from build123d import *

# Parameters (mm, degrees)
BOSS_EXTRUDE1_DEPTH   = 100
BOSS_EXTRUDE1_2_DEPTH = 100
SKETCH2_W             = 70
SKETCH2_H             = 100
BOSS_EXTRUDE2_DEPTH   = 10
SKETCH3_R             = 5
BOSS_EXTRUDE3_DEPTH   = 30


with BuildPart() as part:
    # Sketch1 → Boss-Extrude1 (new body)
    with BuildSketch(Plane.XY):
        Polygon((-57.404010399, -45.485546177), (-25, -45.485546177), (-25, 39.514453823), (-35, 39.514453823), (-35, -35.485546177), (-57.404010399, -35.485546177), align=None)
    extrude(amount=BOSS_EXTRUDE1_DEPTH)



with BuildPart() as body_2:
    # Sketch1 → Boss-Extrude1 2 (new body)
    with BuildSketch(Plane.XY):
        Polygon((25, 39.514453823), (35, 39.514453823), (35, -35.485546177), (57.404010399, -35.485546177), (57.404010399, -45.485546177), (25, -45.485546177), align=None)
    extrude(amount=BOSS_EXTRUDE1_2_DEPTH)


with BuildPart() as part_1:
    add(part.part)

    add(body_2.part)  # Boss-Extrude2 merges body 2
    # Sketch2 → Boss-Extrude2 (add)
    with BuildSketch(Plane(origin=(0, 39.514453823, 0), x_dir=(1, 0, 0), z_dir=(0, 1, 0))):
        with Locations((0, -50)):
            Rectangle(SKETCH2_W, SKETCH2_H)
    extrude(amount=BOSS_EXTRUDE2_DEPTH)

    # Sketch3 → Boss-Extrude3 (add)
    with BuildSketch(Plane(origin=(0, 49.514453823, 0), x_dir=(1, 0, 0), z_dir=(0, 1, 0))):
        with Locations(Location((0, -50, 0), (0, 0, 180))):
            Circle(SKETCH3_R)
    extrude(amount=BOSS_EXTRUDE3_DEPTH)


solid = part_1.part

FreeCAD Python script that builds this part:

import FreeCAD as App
import Part
import Sketcher
from FreeCAD import Vector


def add_polygon(sketch, points):
    """Adds a closed chain of lines whose ends are joined by coincident constraints."""
    first, n = sketch.GeometryCount, len(points)
    for a, b in zip(points, points[1:] + points[:1]):
        sketch.addGeometry(Part.LineSegment(App.Vector(*a, 0), App.Vector(*b, 0)), False)
    for i in range(n):
        sketch.addConstraint(Sketcher.Constraint("Coincident", first + i, 2, first + (i + 1) % n, 1))

doc = App.newDocument("Part")
body = doc.addObject("PartDesign::Body", "Body")

# Sketch on XY plane
sketch1 = body.newObject("Sketcher::SketchObject", "Sketch")
sketch1.AttachmentSupport = (doc.getObject("XY_Plane"), [""])
sketch1.MapMode = "FlatFace"
add_polygon(sketch1, [(-57, -45), (-25, -45), (-25, 40), (-35, 40), (-35, -35), (-57, -35)])  # lines 0-5
sketch1.addConstraint(Sketcher.Constraint("Horizontal", 0))
sketch1.addConstraint(Sketcher.Constraint("Vertical", 1))
sketch1.addConstraint(Sketcher.Constraint("Horizontal", 2))
sketch1.addConstraint(Sketcher.Constraint("Vertical", 3))
sketch1.addConstraint(Sketcher.Constraint("Horizontal", 4))
sketch1.addConstraint(Sketcher.Constraint("Vertical", 5))
sketch1.addConstraint(Sketcher.Constraint("Equal", 2, 5))
sketch1.addConstraint(Sketcher.Constraint("DistanceX", 2, 2, 2, 1, 10.0))
sketch1.addConstraint(Sketcher.Constraint("DistanceY", 1, 1, 1, 2, 85.0))
sketch1.addConstraint(Sketcher.Constraint("DistanceX", 0, 2, -1, 1, 25.0))
sketch1.addConstraint(Sketcher.Constraint("DistanceX", 0, 1, 0, 2, 32.40401))
sketch1.addConstraint(Sketcher.Constraint("DistanceY", 0, 2, -1, 1, 45.485546))
pad1 = body.newObject("PartDesign::Pad", "Pad")
pad1.Profile = sketch1
pad1.Length = 100
body2 = doc.addObject("PartDesign::Body", "Body001")

# Sketch on XY plane
sketch2 = body2.newObject("Sketcher::SketchObject", "Sketch001")
sketch2.AttachmentSupport = (doc.getObject("XY_Plane001"), [""])
sketch2.MapMode = "FlatFace"
add_polygon(sketch2, [(35, 40), (25, 40), (25, -45), (57, -45), (57, -35), (35, -35)])  # lines 0-5
sketch2.addConstraint(Sketcher.Constraint("Horizontal", 0))
sketch2.addConstraint(Sketcher.Constraint("Vertical", 1))
sketch2.addConstraint(Sketcher.Constraint("Horizontal", 2))
sketch2.addConstraint(Sketcher.Constraint("Vertical", 3))
sketch2.addConstraint(Sketcher.Constraint("Horizontal", 4))
sketch2.addConstraint(Sketcher.Constraint("Vertical", 5))
sketch2.addConstraint(Sketcher.Constraint("Equal", 0, 3))
sketch2.addConstraint(Sketcher.Constraint("DistanceX", 0, 2, 0, 1, 10.0))
sketch2.addConstraint(Sketcher.Constraint("DistanceY", 1, 2, 1, 1, 85.0))
sketch2.addConstraint(Sketcher.Constraint("DistanceX", -1, 1, 0, 2, 25.0))
sketch2.addConstraint(Sketcher.Constraint("DistanceX", 2, 1, 2, 2, 32.40401))
sketch2.addConstraint(Sketcher.Constraint("DistanceY", -1, 1, 0, 2, 39.514454))
pad2 = body2.newObject("PartDesign::Pad", "Pad001")
pad2.Profile = sketch2
pad2.Length = 100
body.AllowCompound = True
doc.recompute()

boolean = body.newObject("PartDesign::Boolean", "Boolean")
boolean.Type = "Fuse"
boolean.addObjects([body2])

# Sketch on XZ plane
sketch3 = body.newObject("Sketcher::SketchObject", "Sketch002")
sketch3.AttachmentSupport = (doc.getObject("XZ_Plane"), [""])
sketch3.MapMode = "FlatFace"
sketch3.AttachmentOffset = App.Placement(Vector(0, 0, -39.514454), App.Rotation())
add_polygon(sketch3, [(-35, 0), (-35, 100), (35, 100), (35, 0)])  # lines 0-3
sketch3.addConstraint(Sketcher.Constraint("Vertical", 0))
sketch3.addConstraint(Sketcher.Constraint("Horizontal", 1))
sketch3.addConstraint(Sketcher.Constraint("Vertical", 2))
sketch3.addConstraint(Sketcher.Constraint("Horizontal", 3))
sketch3.addConstraint(Sketcher.Constraint("Symmetric", 2, 2, 3, 2, -1, 1))
sketch3.addConstraint(Sketcher.Constraint("DistanceX", 1, 1, 1, 2, 70.0))
sketch3.addConstraint(Sketcher.Constraint("DistanceY", 0, 1, 0, 2, 100.0))
pad3 = body.newObject("PartDesign::Pad", "Pad002")
pad3.Profile = sketch3
pad3.Length = 10
pad3.Reversed = True

# Sketch on XZ plane
sketch4 = body.newObject("Sketcher::SketchObject", "Sketch003")
sketch4.AttachmentSupport = (doc.getObject("XZ_Plane"), [""])
sketch4.MapMode = "FlatFace"
sketch4.AttachmentOffset = App.Placement(Vector(0, 0, -49.514454), App.Rotation())
sketch4.addGeometry(Part.Circle(Vector(0, 50, 0), Vector(0, 0, 1), 5), False)
sketch4.addConstraint(Sketcher.Constraint("PointOnObject", 0, 3, -2))
sketch4.addConstraint(Sketcher.Constraint("Diameter", 0, 10.0))
sketch4.addConstraint(Sketcher.Constraint("DistanceY", -1, 1, 0, 3, 50.0))
pad4 = body.newObject("PartDesign::Pad", "Pad003")
pad4.Profile = sketch4
pad4.Length = 30
pad4.Reversed = True

doc.recompute()
